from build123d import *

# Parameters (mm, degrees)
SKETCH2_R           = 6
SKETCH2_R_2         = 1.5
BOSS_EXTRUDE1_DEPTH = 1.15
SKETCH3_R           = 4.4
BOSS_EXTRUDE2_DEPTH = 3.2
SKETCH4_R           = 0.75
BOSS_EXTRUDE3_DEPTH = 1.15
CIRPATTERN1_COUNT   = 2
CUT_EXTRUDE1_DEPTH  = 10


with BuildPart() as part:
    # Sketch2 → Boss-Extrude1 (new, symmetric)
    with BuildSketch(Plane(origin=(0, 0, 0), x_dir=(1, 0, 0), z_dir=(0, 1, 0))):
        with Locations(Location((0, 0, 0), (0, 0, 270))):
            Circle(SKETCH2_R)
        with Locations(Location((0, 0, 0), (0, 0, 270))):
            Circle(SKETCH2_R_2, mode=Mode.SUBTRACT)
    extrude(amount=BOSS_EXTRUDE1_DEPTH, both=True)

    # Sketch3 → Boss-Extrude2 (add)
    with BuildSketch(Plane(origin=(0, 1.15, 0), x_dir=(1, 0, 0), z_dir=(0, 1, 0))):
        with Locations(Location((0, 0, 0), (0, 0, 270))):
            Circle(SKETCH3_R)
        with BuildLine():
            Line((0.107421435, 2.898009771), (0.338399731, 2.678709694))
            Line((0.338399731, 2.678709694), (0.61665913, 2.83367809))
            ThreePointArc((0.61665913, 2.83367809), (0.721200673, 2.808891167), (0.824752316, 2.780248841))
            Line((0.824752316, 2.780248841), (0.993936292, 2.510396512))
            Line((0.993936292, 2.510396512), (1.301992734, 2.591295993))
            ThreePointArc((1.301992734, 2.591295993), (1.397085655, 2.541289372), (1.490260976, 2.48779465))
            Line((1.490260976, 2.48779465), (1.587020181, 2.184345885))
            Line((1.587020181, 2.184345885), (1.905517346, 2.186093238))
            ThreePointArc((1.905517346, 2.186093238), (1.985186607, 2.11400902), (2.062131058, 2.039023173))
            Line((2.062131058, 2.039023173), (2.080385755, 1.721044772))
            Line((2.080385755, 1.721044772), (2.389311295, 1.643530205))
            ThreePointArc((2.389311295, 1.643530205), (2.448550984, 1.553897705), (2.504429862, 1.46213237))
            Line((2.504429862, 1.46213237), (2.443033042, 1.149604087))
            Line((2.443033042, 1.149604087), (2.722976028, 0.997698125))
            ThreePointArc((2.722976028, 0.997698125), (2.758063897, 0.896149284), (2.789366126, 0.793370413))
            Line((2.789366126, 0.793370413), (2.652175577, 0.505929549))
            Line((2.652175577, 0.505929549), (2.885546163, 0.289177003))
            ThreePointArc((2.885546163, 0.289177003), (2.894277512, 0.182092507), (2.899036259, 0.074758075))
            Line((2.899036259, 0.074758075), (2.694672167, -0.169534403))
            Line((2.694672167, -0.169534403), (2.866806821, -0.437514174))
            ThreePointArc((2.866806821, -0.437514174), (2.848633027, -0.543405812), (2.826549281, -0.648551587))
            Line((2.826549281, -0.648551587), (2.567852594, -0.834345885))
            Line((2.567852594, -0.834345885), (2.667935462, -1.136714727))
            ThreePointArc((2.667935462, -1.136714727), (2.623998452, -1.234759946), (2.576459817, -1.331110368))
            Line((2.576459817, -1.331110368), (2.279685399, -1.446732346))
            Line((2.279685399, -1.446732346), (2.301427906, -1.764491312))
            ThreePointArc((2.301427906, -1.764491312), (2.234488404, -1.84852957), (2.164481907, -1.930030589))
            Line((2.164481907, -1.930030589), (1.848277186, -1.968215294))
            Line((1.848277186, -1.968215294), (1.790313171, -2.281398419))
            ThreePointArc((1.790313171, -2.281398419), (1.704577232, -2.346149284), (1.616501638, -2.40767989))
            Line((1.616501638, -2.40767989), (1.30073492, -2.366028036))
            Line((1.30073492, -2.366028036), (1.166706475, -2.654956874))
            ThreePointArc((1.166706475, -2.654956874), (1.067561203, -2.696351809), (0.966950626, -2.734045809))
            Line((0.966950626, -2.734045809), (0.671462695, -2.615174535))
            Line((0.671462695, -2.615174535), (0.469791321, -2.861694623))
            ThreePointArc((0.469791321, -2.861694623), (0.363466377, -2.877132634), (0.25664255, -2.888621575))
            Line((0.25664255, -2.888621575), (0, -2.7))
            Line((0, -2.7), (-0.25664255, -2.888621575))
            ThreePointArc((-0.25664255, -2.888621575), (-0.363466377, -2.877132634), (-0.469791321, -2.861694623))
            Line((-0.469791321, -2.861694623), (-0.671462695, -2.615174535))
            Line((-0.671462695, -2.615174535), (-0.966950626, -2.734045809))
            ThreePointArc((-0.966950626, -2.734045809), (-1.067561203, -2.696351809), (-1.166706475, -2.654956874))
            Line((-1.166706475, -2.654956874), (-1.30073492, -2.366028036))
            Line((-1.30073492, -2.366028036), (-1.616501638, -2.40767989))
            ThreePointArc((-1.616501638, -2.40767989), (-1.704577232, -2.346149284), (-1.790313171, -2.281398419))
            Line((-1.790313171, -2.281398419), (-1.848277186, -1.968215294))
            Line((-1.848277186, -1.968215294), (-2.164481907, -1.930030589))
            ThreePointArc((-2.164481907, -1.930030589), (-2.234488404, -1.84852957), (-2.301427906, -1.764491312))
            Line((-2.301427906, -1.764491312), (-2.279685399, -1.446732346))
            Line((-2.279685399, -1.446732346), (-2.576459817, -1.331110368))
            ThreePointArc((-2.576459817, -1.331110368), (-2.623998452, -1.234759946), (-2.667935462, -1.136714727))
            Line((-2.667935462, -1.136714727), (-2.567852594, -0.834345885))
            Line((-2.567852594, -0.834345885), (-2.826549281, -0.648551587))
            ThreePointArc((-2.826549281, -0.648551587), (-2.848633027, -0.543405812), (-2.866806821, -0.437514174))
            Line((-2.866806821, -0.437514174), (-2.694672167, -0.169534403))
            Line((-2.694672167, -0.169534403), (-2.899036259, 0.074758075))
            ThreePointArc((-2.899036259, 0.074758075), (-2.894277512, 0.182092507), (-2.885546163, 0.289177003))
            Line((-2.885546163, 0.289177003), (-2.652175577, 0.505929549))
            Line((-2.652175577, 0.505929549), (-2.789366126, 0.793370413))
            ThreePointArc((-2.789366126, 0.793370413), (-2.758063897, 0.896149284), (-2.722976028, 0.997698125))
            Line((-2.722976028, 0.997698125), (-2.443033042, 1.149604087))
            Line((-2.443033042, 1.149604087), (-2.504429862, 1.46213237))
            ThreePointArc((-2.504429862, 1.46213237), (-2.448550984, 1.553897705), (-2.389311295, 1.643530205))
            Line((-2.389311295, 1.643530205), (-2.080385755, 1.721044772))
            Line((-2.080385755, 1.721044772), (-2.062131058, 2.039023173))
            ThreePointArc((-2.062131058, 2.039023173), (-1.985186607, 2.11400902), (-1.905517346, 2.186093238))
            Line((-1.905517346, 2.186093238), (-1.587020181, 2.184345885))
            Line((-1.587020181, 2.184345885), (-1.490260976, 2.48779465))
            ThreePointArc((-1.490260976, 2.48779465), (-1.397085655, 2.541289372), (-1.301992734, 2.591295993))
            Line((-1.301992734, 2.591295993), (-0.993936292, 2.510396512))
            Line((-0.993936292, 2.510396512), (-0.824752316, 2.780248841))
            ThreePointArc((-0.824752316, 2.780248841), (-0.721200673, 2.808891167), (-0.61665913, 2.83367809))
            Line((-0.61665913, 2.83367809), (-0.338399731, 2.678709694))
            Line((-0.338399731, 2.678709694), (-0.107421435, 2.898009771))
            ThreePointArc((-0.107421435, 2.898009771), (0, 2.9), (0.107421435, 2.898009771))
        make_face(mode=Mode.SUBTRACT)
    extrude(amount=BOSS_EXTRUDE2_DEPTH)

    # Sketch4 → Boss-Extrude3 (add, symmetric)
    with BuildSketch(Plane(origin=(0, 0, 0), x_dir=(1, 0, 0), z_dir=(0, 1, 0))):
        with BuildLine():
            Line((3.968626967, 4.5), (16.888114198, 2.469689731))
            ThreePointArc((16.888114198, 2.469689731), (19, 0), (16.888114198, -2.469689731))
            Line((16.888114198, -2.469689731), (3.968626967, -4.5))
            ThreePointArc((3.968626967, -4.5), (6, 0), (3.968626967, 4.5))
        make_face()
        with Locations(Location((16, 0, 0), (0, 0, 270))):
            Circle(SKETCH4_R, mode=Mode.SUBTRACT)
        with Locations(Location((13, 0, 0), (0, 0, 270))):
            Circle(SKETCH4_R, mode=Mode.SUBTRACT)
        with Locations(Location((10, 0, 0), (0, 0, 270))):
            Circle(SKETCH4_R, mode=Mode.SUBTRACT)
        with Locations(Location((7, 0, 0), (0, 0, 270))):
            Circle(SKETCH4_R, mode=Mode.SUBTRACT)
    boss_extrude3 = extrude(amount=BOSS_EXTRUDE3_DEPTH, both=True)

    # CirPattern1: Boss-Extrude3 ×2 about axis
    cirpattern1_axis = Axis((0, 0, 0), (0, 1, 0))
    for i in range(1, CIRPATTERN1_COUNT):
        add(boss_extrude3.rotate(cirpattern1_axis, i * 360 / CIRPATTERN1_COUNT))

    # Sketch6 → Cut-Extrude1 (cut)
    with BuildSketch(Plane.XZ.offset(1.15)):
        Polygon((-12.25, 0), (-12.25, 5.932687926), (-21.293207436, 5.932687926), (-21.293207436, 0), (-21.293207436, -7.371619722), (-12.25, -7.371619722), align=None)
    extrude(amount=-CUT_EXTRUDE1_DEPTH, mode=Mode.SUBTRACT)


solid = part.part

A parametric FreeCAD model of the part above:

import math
import FreeCAD as App
import Part
import Sketcher
from FreeCAD import Vector

doc = App.newDocument("Part")
params = doc.addObject("Spreadsheet::Sheet", "Params")
for row, (alias, value) in enumerate([
    ("sketch1_diameter", "12 mm"),
    ("sketch1_diameter2", "3 mm"),
    ("pad1_length", "2.3 mm"),
    ("sketch2_diameter", "8.8 mm"),
    ("sketch2_radius", "2.899999 mm"),
    ("pad2_length", "3.2 mm"),
    ("sketch3_radius", "6 mm"),
    ("sketch3_diameter", "1.5 mm"),
    ("sketch3_radius2", "2.5 mm"),
    ("pad3_length", "2.3 mm"),
    ("pocket1_length", "10 mm"),
], start=1):
    params.set(f"A{row}", alias)
    params.set(f"B{row}", "=" + value)
    params.setAlias(f"B{row}", alias)

body = doc.addObject("PartDesign::Body", "Body")

sketch1 = body.newObject("Sketcher::SketchObject", "Sketch")
sketch1.AttachmentSupport = (doc.getObject("XZ_Plane"), [""])
sketch1.MapMode = "FlatFace"
sketch1.addGeometry(Part.Circle(Vector(0, 0, 0), Vector(0, 0, 1), 6), False)
sketch1.addGeometry(Part.Circle(Vector(0, 0, 0), Vector(0, 0, 1), 1.5), False)
sketch1.addConstraint(Sketcher.Constraint("Coincident", 0, 3, -1, 1))
sketch1.addConstraint(Sketcher.Constraint("Coincident", 1, 3, -1, 1))
sketch1.addConstraint(Sketcher.Constraint("Diameter", 0, 12.0))
sketch1.addConstraint(Sketcher.Constraint("Diameter", 1, 3.0))
sketch1.setExpression("Constraints[2]", "Params.sketch1_diameter")
sketch1.setExpression("Constraints[3]", "Params.sketch1_diameter2")
pad1 = body.newObject("PartDesign::Pad", "Pad")
pad1.Profile = sketch1
pad1.setExpression("Length", "Params.pad1_length")
pad1.Midplane = True

sketch2 = body.newObject("Sketcher::SketchObject", "Sketch001")
sketch2.AttachmentSupport = (doc.getObject("XZ_Plane"), [""])
sketch2.MapMode = "FlatFace"
sketch2.AttachmentOffset = App.Placement(Vector(0, 0, -1.15), App.Rotation())
sketch2.addGeometry(Part.Circle(Vector(0, 0, 0), Vector(0, 0, 1), 4.4), False)
sketch2.addGeometry(Part.ArcOfCircle(Part.Circle(Vector(0, -0.000001, 0), Vector(0, 0, 1), 2.899999), math.radians(-92.122829), math.radians(-87.877171)), False)
sketch2.addGeometry(Part.LineSegment(Vector(0.107421, -2.89801, 0), Vector(0.3384, -2.67871, 0)), False)
sketch2.addGeometry(Part.LineSegment(Vector(0.3384, -2.67871, 0), Vector(0.616659, -2.833678, 0)), False)
sketch2.addGeometry(Part.ArcOfCircle(Part.Circle(Vector(0, 0, 0), Vector(0, 0, 1), 2.9), math.radians(-77.722828), math.radians(-73.477172)), False)
sketch2.addGeometry(Part.LineSegment(Vector(0.824752, -2.780249, 0), Vector(0.993936, -2.510397, 0)), False)
sketch2.addGeometry(Part.LineSegment(Vector(0.993936, -2.510397, 0), Vector(1.301993, -2.591296, 0)), False)
sketch2.addGeometry(Part.ArcOfCircle(Part.Circle(Vector(0, 0, 0), Vector(0, 0, 1), 2.9), math.radians(-63.322828), math.radians(-59.077171)), False)
sketch2.addGeometry(Part.LineSegment(Vector(1.490261, -2.487795, 0), Vector(1.58702, -2.184346, 0)), False)
sketch2.addGeometry(Part.LineSegment(Vector(1.58702, -2.184346, 0), Vector(1.905517, -2.186093, 0)), False)
sketch2.addGeometry(Part.ArcOfCircle(Part.Circle(Vector(0, 0, 0), Vector(0, 0, 1), 2.9), math.radians(-48.922829), math.radians(-44.677171)), False)
sketch2.addGeometry(Part.LineSegment(Vector(2.062131, -2.039023, 0), Vector(2.080386, -1.721045, 0)), False)
sketch2.addGeometry(Part.LineSegment(Vector(2.080386, -1.721045, 0), Vector(2.389311, -1.64353, 0)), False)
sketch2.addGeometry(Part.ArcOfCircle(Part.Circle(Vector(0, 0, 0), Vector(0, 0, 1), 2.9), math.radians(-34.522829), math.radians(-30.277172)), False)
sketch2.addGeometry(Part.LineSegment(Vector(2.50443, -1.462132, 0), Vector(2.443033, -1.149604, 0)), False)
sketch2.addGeometry(Part.LineSegment(Vector(2.443033, -1.149604, 0), Vector(2.722976, -0.997698, 0)), False)
sketch2.addGeometry(Part.ArcOfCircle(Part.Circle(Vector(0, 0, 0), Vector(0, 0, 1), 2.9), math.radians(-20.122829), math.radians(-15.877171)), False)
sketch2.addGeometry(Part.LineSegment(Vector(2.789366, -0.79337, 0), Vector(2.652176, -0.50593, 0)), False)
sketch2.addGeometry(Part.LineSegment(Vector(2.652176, -0.50593, 0), Vector(2.885546, -0.289177, 0)), False)
sketch2.addGeometry(Part.ArcOfCircle(Part.Circle(Vector(0, 0, 0), Vector(0, 0, 1), 2.9), math.radians(-5.722829), math.radians(-1.477172)), False)
sketch2.addGeometry(Part.LineSegment(Vector(2.899036, -0.074758, 0), Vector(2.694672, 0.169534, 0)), False)
sketch2.addGeometry(Part.LineSegment(Vector(2.694672, 0.169534, 0), Vector(2.866807, 0.437514, 0)), False)
sketch2.addGeometry(Part.ArcOfCircle(Part.Circle(Vector(0, 0, 0), Vector(0, 0, 1), 2.9), math.radians(8.677172), math.radians(12.922829)), False)
sketch2.addGeometry(Part.LineSegment(Vector(2.826549, 0.648552, 0), Vector(2.567853, 0.834346, 0)), False)
sketch2.addGeometry(Part.LineSegment(Vector(2.567853, 0.834346, 0), Vector(2.667935, 1.136715, 0)), False)
sketch2.addGeometry(Part.ArcOfCircle(Part.Circle(Vector(0, 0, 0), Vector(0, 0, 1), 2.9), math.radians(23.077171), math.radians(27.322829)), False)
sketch2.addGeometry(Part.LineSegment(Vector(2.57646, 1.33111, 0), Vector(2.279685, 1.446732, 0)), False)
sketch2.addGeometry(Part.LineSegment(Vector(2.279685, 1.446732, 0), Vector(2.301428, 1.764491, 0)), False)
sketch2.addGeometry(Part.ArcOfCircle(Part.Circle(Vector(0, 0, 0), Vector(0, 0, 1), 2.9), math.radians(37.477171), math.radians(41.722829)), False)
sketch2.addGeometry(Part.LineSegment(Vector(2.164482, 1.930031, 0), Vector(1.848277, 1.968215, 0)), False)
sketch2.addGeometry(Part.LineSegment(Vector(1.848277, 1.968215, 0), Vector(1.790313, 2.281398, 0)), False)
sketch2.addGeometry(Part.ArcOfCircle(Part.Circle(Vector(0.000001, 0.000001, 0), Vector(0, 0, 1), 2.899999), math.radians(51.87717), math.radians(56.12283)), False)
sketch2.addGeometry(Part.LineSegment(Vector(1.616502, 2.40768, 0), Vector(1.300735, 2.366028, 0)), False)
sketch2.addGeometry(Part.LineSegment(Vector(1.300735, 2.366028, 0), Vector(1.166706, 2.654957, 0)), False)
sketch2.addGeometry(Part.ArcOfCircle(Part.Circle(Vector(0, 0, 0), Vector(0, 0, 1), 2.9), math.radians(66.277171), math.radians(70.522829)), False)
sketch2.addGeometry(Part.LineSegment(Vector(0.966951, 2.734046, 0), Vector(0.671463, 2.615175, 0)), False)
sketch2.addGeometry(Part.LineSegment(Vector(0.671463, 2.615175, 0), Vector(0.469791, 2.861695, 0)), False)
sketch2.addGeometry(Part.ArcOfCircle(Part.Circle(Vector(0, 0, 0), Vector(0, 0, 1), 2.9), math.radians(80.677171), math.radians(84.922829)), False)
sketch2.addGeometry(Part.LineSegment(Vector(0.256643, 2.888622, 0), Vector(0, 2.7, 0)), False)
sketch2.addGeometry(Part.LineSegment(Vector(0, 2.7, 0), Vector(-0.256643, 2.888622, 0)), False)
sketch2.addGeometry(Part.ArcOfCircle(Part.Circle(Vector(0, 0, 0), Vector(0, 0, 1), 2.9), math.radians(95.077171), math.radians(99.322829)), False)
sketch2.addGeometry(Part.LineSegment(Vector(-0.469791, 2.861695, 0), Vector(-0.671463, 2.615175, 0)), False)
sketch2.addGeometry(Part.LineSegment(Vector(-0.671463, 2.615175, 0), Vector(-0.966951, 2.734046, 0)), False)
sketch2.addGeometry(Part.ArcOfCircle(Part.Circle(Vector(0, 0, 0), Vector(0, 0, 1), 2.9), math.radians(109.477171), math.radians(113.722829)), False)
sketch2.addGeometry(Part.LineSegment(Vector(-1.166706, 2.654957, 0), Vector(-1.300735, 2.366028, 0)), False)
sketch2.addGeometry(Part.LineSegment(Vector(-1.300735, 2.366028, 0), Vector(-1.616502, 2.40768, 0)), False)
sketch2.addGeometry(Part.ArcOfCircle(Part.Circle(Vector(-0.000001, 0.000001, 0), Vector(0, 0, 1), 2.899999), math.radians(123.87717), math.radians(128.12283)), False)
sketch2.addGeometry(Part.LineSegment(Vector(-1.790313, 2.281398, 0), Vector(-1.848277, 1.968215, 0)), False)
sketch2.addGeometry(Part.LineSegment(Vector(-1.848277, 1.968215, 0), Vector(-2.164482, 1.930031, 0)), False)
sketch2.addGeometry(Part.ArcOfCircle(Part.Circle(Vector(0, 0, 0), Vector(0, 0, 1), 2.9), math.radians(138.277171), math.radians(142.522829)), False)
sketch2.addGeometry(Part.LineSegment(Vector(-2.301428, 1.764491, 0), Vector(-2.279685, 1.446732, 0)), False)
sketch2.addGeometry(Part.LineSegment(Vector(-2.279685, 1.446732, 0), Vector(-2.57646, 1.33111, 0)), False)
sketch2.addGeometry(Part.ArcOfCircle(Part.Circle(Vector(0, 0, 0), Vector(0, 0, 1), 2.9), math.radians(152.677171), math.radians(156.922829)), False)
sketch2.addGeometry(Part.LineSegment(Vector(-2.667935, 1.136715, 0), Vector(-2.567853, 0.834346, 0)), False)
sketch2.addGeometry(Part.LineSegment(Vector(-2.567853, 0.834346, 0), Vector(-2.826549, 0.648552, 0)), False)
sketch2.addGeometry(Part.ArcOfCircle(Part.Circle(Vector(0, 0, 0), Vector(0, 0, 1), 2.9), math.radians(167.077171), math.radians(171.322828)), False)
sketch2.addGeometry(Part.LineSegment(Vector(-2.866807, 0.437514, 0), Vector(-2.694672, 0.169534, 0)), False)
sketch2.addGeometry(Part.LineSegment(Vector(-2.694672, 0.169534, 0), Vector(-2.899036, -0.074758, 0)), False)
sketch2.addGeometry(Part.ArcOfCircle(Part.Circle(Vector(0, 0, 0), Vector(0, 0, 1), 2.9), math.radians(-178.522828), math.radians(-174.277171)), False)
sketch2.addGeometry(Part.LineSegment(Vector(-2.885546, -0.289177, 0), Vector(-2.652176, -0.50593, 0)), False)
sketch2.addGeometry(Part.LineSegment(Vector(-2.652176, -0.50593, 0), Vector(-2.789366, -0.79337, 0)), False)
sketch2.addGeometry(Part.ArcOfCircle(Part.Circle(Vector(0, 0, 0), Vector(0, 0, 1), 2.9), math.radians(-164.122829), math.radians(-159.877171)), False)
sketch2.addGeometry(Part.LineSegment(Vector(-2.722976, -0.997698, 0), Vector(-2.443033, -1.149604, 0)), False)
sketch2.addGeometry(Part.LineSegment(Vector(-2.443033, -1.149604, 0), Vector(-2.50443, -1.462132, 0)), False)
sketch2.addGeometry(Part.ArcOfCircle(Part.Circle(Vector(0, 0, 0), Vector(0, 0, 1), 2.9), math.radians(-149.722828), math.radians(-145.477171)), False)
sketch2.addGeometry(Part.LineSegment(Vector(-2.389311, -1.64353, 0), Vector(-2.080386, -1.721045, 0)), False)
sketch2.addGeometry(Part.LineSegment(Vector(-2.080386, -1.721045, 0), Vector(-2.062131, -2.039023, 0)), False)
sketch2.addGeometry(Part.ArcOfCircle(Part.Circle(Vector(0, 0, 0), Vector(0, 0, 1), 2.9), math.radians(-135.322829), math.radians(-131.077171)), False)
sketch2.addGeometry(Part.LineSegment(Vector(-1.905517, -2.186093, 0), Vector(-1.58702, -2.184346, 0)), False)
sketch2.addGeometry(Part.LineSegment(Vector(-1.58702, -2.184346, 0), Vector(-1.490261, -2.487795, 0)), False)
sketch2.addGeometry(Part.ArcOfCircle(Part.Circle(Vector(0, 0, 0), Vector(0, 0, 1), 2.9), math.radians(-120.922829), math.radians(-116.677172)), False)
sketch2.addGeometry(Part.LineSegment(Vector(-1.301993, -2.591296, 0), Vector(-0.993936, -2.510397, 0)), False)
sketch2.addGeometry(Part.LineSegment(Vector(-0.993936, -2.510397, 0), Vector(-0.824752, -2.780249, 0)), False)
sketch2.addGeometry(Part.ArcOfCircle(Part.Circle(Vector(0, 0, 0), Vector(0, 0, 1), 2.9), math.radians(-106.522828), math.radians(-102.277172)), False)
sketch2.addGeometry(Part.LineSegment(Vector(-0.616659, -2.833678, 0), Vector(-0.3384, -2.67871, 0)), False)
sketch2.addGeometry(Part.LineSegment(Vector(-0.3384, -2.67871, 0), Vector(-0.107421, -2.89801, 0)), False)
sketch2.addConstraint(Sketcher.Constraint("Coincident", 1, 2, 2, 1))
sketch2.addConstraint(Sketcher.Constraint("Coincident", 2, 2, 3, 1))
sketch2.addConstraint(Sketcher.Constraint("Coincident", 3, 2, 4, 1))
sketch2.addConstraint(Sketcher.Constraint("Coincident", 4, 2, 5, 1))
sketch2.addConstraint(Sketcher.Constraint("Coincident", 5, 2, 6, 1))
sketch2.addConstraint(Sketcher.Constraint("Coincident", 6, 2, 7, 1))
sketch2.addConstraint(Sketcher.Constraint("Coincident", 7, 2, 8, 1))
sketch2.addConstraint(Sketcher.Constraint("Coincident", 8, 2, 9, 1))
sketch2.addConstraint(Sketcher.Constraint("Coincident", 9, 2, 10, 1))
sketch2.addConstraint(Sketcher.Constraint("Coincident", 10, 2, 11, 1))
sketch2.addConstraint(Sketcher.Constraint("Coincident", 11, 2, 12, 1))
sketch2.addConstraint(Sketcher.Constraint("Coincident", 12, 2, 13, 1))
sketch2.addConstraint(Sketcher.Constraint("Coincident", 13, 2, 14, 1))
sketch2.addConstraint(Sketcher.Constraint("Coincident", 14, 2, 15, 1))
sketch2.addConstraint(Sketcher.Constraint("Coincident", 15, 2, 16, 1))
sketch2.addConstraint(Sketcher.Constraint("Coincident", 16, 2, 17, 1))
sketch2.addConstraint(Sketcher.Constraint("Coincident", 17, 2, 18, 1))
sketch2.addConstraint(Sketcher.Constraint("Coincident", 18, 2, 19, 1))
sketch2.addConstraint(Sketcher.Constraint("Coincident", 19, 2, 20, 1))
sketch2.addConstraint(Sketcher.Constraint("Coincident", 20, 2, 21, 1))
sketch2.addConstraint(Sketcher.Constraint("Coincident", 21, 2, 22, 1))
sketch2.addConstraint(Sketcher.Constraint("Coincident", 22, 2, 23, 1))
sketch2.addConstraint(Sketcher.Constraint("Coincident", 23, 2, 24, 1))
sketch2.addConstraint(Sketcher.Constraint("Coincident", 24, 2, 25, 1))
sketch2.addConstraint(Sketcher.Constraint("Coincident", 25, 2, 26, 1))
sketch2.addConstraint(Sketcher.Constraint("Coincident", 26, 2, 27, 1))
sketch2.addConstraint(Sketcher.Constraint("Coincident", 27, 2, 28, 1))
sketch2.addConstraint(Sketcher.Constraint("Coincident", 28, 2, 29, 1))
sketch2.addConstraint(Sketcher.Constraint("Coincident", 29, 2, 30, 1))
sketch2.addConstraint(Sketcher.Constraint("Coincident", 30, 2, 31, 1))
sketch2.addConstraint(Sketcher.Constraint("Coincident", 31, 2, 32, 1))
sketch2.addConstraint(Sketcher.Constraint("Coincident", 32, 2, 33, 1))
sketch2.addConstraint(Sketcher.Constraint("Coincident", 33, 2, 34, 1))
sketch2.addConstraint(Sketcher.Constraint("Coincident", 34, 2, 35, 1))
sketch2.addConstraint(Sketcher.Constraint("Coincident", 35, 2, 36, 1))
sketch2.addConstraint(Sketcher.Constraint("Coincident", 36, 2, 37, 1))
sketch2.addConstraint(Sketcher.Constraint("Coincident", 37, 2, 38, 1))
sketch2.addConstraint(Sketcher.Constraint("Coincident", 38, 2, 39, 1))
sketch2.addConstraint(Sketcher.Constraint("Coincident", 39, 2, 40, 1))
sketch2.addConstraint(Sketcher.Constraint("Coincident", 40, 2, 41, 1))
sketch2.addConstraint(Sketcher.Constraint("Coincident", 41, 2, 42, 1))
sketch2.addConstraint(Sketcher.Constraint("Coincident", 42, 2, 43, 1))
sketch2.addConstraint(Sketcher.Constraint("Coincident", 43, 2, 44, 1))
sketch2.addConstraint(Sketcher.Constraint("Coincident", 44, 2, 45, 1))
sketch2.addConstraint(Sketcher.Constraint("Coincident", 45, 2, 46, 1))
sketch2.addConstraint(Sketcher.Constraint("Coincident", 46, 2, 47, 1))
sketch2.addConstraint(Sketcher.Constraint("Coincident", 47, 2, 48, 1))
sketch2.addConstraint(Sketcher.Constraint("Coincident", 48, 2, 49, 1))
sketch2.addConstraint(Sketcher.Constraint("Coincident", 49, 2, 50, 1))
sketch2.addConstraint(Sketcher.Constraint("Coincident", 50, 2, 51, 1))
sketch2.addConstraint(Sketcher.Constraint("Coincident", 51, 2, 52, 1))
sketch2.addConstraint(Sketcher.Constraint("Coincident", 52, 2, 53, 1))
sketch2.addConstraint(Sketcher.Constraint("Coincident", 53, 2, 54, 1))
sketch2.addConstraint(Sketcher.Constraint("Coincident", 54, 2, 55, 1))
sketch2.addConstraint(Sketcher.Constraint("Coincident", 55, 2, 56, 1))
sketch2.addConstraint(Sketcher.Constraint("Coincident", 56, 2, 57, 1))
sketch2.addConstraint(Sketcher.Constraint("Coincident", 57, 2, 58, 1))
sketch2.addConstraint(Sketcher.Constraint("Coincident", 58, 2, 59, 1))
sketch2.addConstraint(Sketcher.Constraint("Coincident", 59, 2, 60, 1))
sketch2.addConstraint(Sketcher.Constraint("Coincident", 60, 2, 61, 1))
sketch2.addConstraint(Sketcher.Constraint("Coincident", 61, 2, 62, 1))
sketch2.addConstraint(Sketcher.Constraint("Coincident", 62, 2, 63, 1))
sketch2.addConstraint(Sketcher.Constraint("Coincident", 63, 2, 64, 1))
sketch2.addConstraint(Sketcher.Constraint("Coincident", 64, 2, 65, 1))
sketch2.addConstraint(Sketcher.Constraint("Coincident", 65, 2, 66, 1))
sketch2.addConstraint(Sketcher.Constraint("Coincident", 66, 2, 67, 1))
sketch2.addConstraint(Sketcher.Constraint("Coincident", 67, 2, 68, 1))
sketch2.addConstraint(Sketcher.Constraint("Coincident", 68, 2, 69, 1))
sketch2.addConstraint(Sketcher.Constraint("Coincident", 69, 2, 70, 1))
sketch2.addConstraint(Sketcher.Constraint("Coincident", 70, 2, 71, 1))
sketch2.addConstraint(Sketcher.Constraint("Coincident", 71, 2, 72, 1))
sketch2.addConstraint(Sketcher.Constraint("Coincident", 72, 2, 73, 1))
sketch2.addConstraint(Sketcher.Constraint("Coincident", 73, 2, 74, 1))
sketch2.addConstraint(Sketcher.Constraint("Coincident", 74, 2, 75, 1))
sketch2.addConstraint(Sketcher.Constraint("Coincident", 75, 2, 1, 1))
sketch2.addConstraint(Sketcher.Constraint("Coincident", 0, 3, -1, 1))
sketch2.addConstraint(Sketcher.Constraint("Coincident", 1, 3, -1, 1))
sketch2.addConstraint(Sketcher.Constraint("Coincident", 4, 3, -1, 1))
sketch2.addConstraint(Sketcher.Constraint("Coincident", 7, 3, -1, 1))
sketch2.addConstraint(Sketcher.Constraint("Coincident", 10, 3, -1, 1))
sketch2.addConstraint(Sketcher.Constraint("Coincident", 13, 3, -1, 1))
sketch2.addConstraint(Sketcher.Constraint("Coincident", 16, 3, -1, 1))
sketch2.addConstraint(Sketcher.Constraint("Coincident", 19, 3, -1, 1))
sketch2.addConstraint(Sketcher.Constraint("Coincident", 22, 3, -1, 1))
sketch2.addConstraint(Sketcher.Constraint("Coincident", 25, 3, -1, 1))
sketch2.addConstraint(Sketcher.Constraint("Coincident", 28, 3, -1, 1))
sketch2.addConstraint(Sketcher.Constraint("Coincident", 31, 3, -1, 1))
sketch2.addConstraint(Sketcher.Constraint("Coincident", 34, 3, -1, 1))
sketch2.addConstraint(Sketcher.Constraint("Coincident", 37, 3, -1, 1))
sketch2.addConstraint(Sketcher.Constraint("Coincident", 40, 3, -1, 1))
sketch2.addConstraint(Sketcher.Constraint("Coincident", 43, 3, -1, 1))
sketch2.addConstraint(Sketcher.Constraint("Coincident", 46, 3, -1, 1))
sketch2.addConstraint(Sketcher.Constraint("Coincident", 49, 3, -1, 1))
sketch2.addConstraint(Sketcher.Constraint("Coincident", 52, 3, -1, 1))
sketch2.addConstraint(Sketcher.Constraint("Coincident", 55, 3, -1, 1))
sketch2.addConstraint(Sketcher.Constraint("Coincident", 58, 3, -1, 1))
sketch2.addConstraint(Sketcher.Constraint("Coincident", 61, 3, -1, 1))
sketch2.addConstraint(Sketcher.Constraint("Coincident", 64, 3, -1, 1))
sketch2.addConstraint(Sketcher.Constraint("Coincident", 67, 3, -1, 1))
sketch2.addConstraint(Sketcher.Constraint("Coincident", 70, 3, -1, 1))
sketch2.addConstraint(Sketcher.Constraint("Coincident", 73, 3, -1, 1))
sketch2.addConstraint(Sketcher.Constraint("Equal", 1, 4))
sketch2.addConstraint(Sketcher.Constraint("Equal", 4, 7))
sketch2.addConstraint(Sketcher.Constraint("Equal", 7, 10))
sketch2.addConstraint(Sketcher.Constraint("Equal", 10, 13))
sketch2.addConstraint(Sketcher.Constraint("Equal", 13, 16))
sketch2.addConstraint(Sketcher.Constraint("Equal", 16, 19))
sketch2.addConstraint(Sketcher.Constraint("Equal", 19, 22))
sketch2.addConstraint(Sketcher.Constraint("Equal", 22, 25))
sketch2.addConstraint(Sketcher.Constraint("Equal", 25, 28))
sketch2.addConstraint(Sketcher.Constraint("Equal", 28, 31))
sketch2.addConstraint(Sketcher.Constraint("Equal", 31, 34))
sketch2.addConstraint(Sketcher.Constraint("Equal", 34, 37))
sketch2.addConstraint(Sketcher.Constraint("Equal", 37, 40))
sketch2.addConstraint(Sketcher.Constraint("Equal", 40, 43))
sketch2.addConstraint(Sketcher.Constraint("Equal", 43, 46))
sketch2.addConstraint(Sketcher.Constraint("Equal", 46, 49))
sketch2.addConstraint(Sketcher.Constraint("Equal", 49, 52))
sketch2.addConstraint(Sketcher.Constraint("Equal", 52, 55))
sketch2.addConstraint(Sketcher.Constraint("Equal", 55, 58))
sketch2.addConstraint(Sketcher.Constraint("Equal", 58, 61))
sketch2.addConstraint(Sketcher.Constraint("Equal", 61, 64))
sketch2.addConstraint(Sketcher.Constraint("Equal", 64, 67))
sketch2.addConstraint(Sketcher.Constraint("Equal", 67, 70))
sketch2.addConstraint(Sketcher.Constraint("Equal", 70, 73))
sketch2.addConstraint(Sketcher.Constraint("Symmetric", 35, 2, 41, 2, -2))
sketch2.addConstraint(Sketcher.Constraint("Symmetric", 32, 2, 44, 2, -2))
sketch2.addConstraint(Sketcher.Constraint("Symmetric", 29, 2, 47, 2, -2))
sketch2.addConstraint(Sketcher.Constraint("Symmetric", 26, 2, 50, 2, -2))
sketch2.addConstraint(Sketcher.Constraint("Symmetric", 23, 2, 53, 2, -2))
sketch2.addConstraint(Sketcher.Constraint("Symmetric", 20, 2, 56, 2, -2))
sketch2.addConstraint(Sketcher.Constraint("Symmetric", 17, 2, 59, 2, -2))
sketch2.addConstraint(Sketcher.Constraint("Symmetric", 14, 2, 62, 2, -2))
sketch2.addConstraint(Sketcher.Constraint("Symmetric", 11, 2, 65, 2, -2))
sketch2.addConstraint(Sketcher.Constraint("Symmetric", 8, 2, 68, 2, -2))
sketch2.addConstraint(Sketcher.Constraint("Symmetric", 5, 2, 71, 2, -2))
sketch2.addConstraint(Sketcher.Constraint("Symmetric", 2, 2, 74, 2, -2))
sketch2.addConstraint(Sketcher.Constraint("PointOnObject", 38, 2, -2))
sketch2.addConstraint(Sketcher.Constraint("Horizontal", 37, 2, 39, 2))
sketch2.addConstraint(Sketcher.Constraint("Horizontal", 36, 2, 40, 2))
sketch2.addConstraint(Sketcher.Constraint("Horizontal", 34, 2, 42, 2))
sketch2.addConstraint(Sketcher.Constraint("Horizontal", 33, 2, 43, 2))
sketch2.addConstraint(Sketcher.Constraint("Horizontal", 31, 2, 45, 2))
sketch2.addConstraint(Sketcher.Constraint("Horizontal", 30, 2, 46, 2))
sketch2.addConstraint(Sketcher.Constraint("Horizontal", 28, 2, 48, 2))
sketch2.addConstraint(Sketcher.Constraint("Horizontal", 27, 2, 49, 2))
sketch2.addConstraint(Sketcher.Constraint("Horizontal", 25, 2, 51, 2))
sketch2.addConstraint(Sketcher.Constraint("Horizontal", 24, 2, 52, 2))
sketch2.addConstraint(Sketcher.Constraint("Horizontal", 22, 2, 54, 2))
sketch2.addConstraint(Sketcher.Constraint("Horizontal", 21, 2, 55, 2))
sketch2.addConstraint(Sketcher.Constraint("Horizontal", 19, 2, 57, 2))
sketch2.addConstraint(Sketcher.Constraint("Horizontal", 18, 2, 58, 2))
sketch2.addConstraint(Sketcher.Constraint("Horizontal", 16, 2, 60, 2))
sketch2.addConstraint(Sketcher.Constraint("Horizontal", 15, 2, 61, 2))
sketch2.addConstraint(Sketcher.Constraint("Horizontal", 13, 2, 63, 2))
sketch2.addConstraint(Sketcher.Constraint("Horizontal", 12, 2, 64, 2))
sketch2.addConstraint(Sketcher.Constraint("Horizontal", 10, 2, 66, 2))
sketch2.addConstraint(Sketcher.Constraint("Horizontal", 9, 2, 67, 2))
sketch2.addConstraint(Sketcher.Constraint("Horizontal", 7, 2, 69, 2))
sketch2.addConstraint(Sketcher.Constraint("Horizontal", 6, 2, 70, 2))
sketch2.addConstraint(Sketcher.Constraint("Horizontal", 4, 2, 72, 2))
sketch2.addConstraint(Sketcher.Constraint("Horizontal", 3, 2, 73, 2))
sketch2.addConstraint(Sketcher.Constraint("Horizontal", 1, 2, 75, 2))
sketch2.addConstraint(Sketcher.Constraint("Equal", 2, 3))
sketch2.addConstraint(Sketcher.Constraint("Equal", 3, 5))
sketch2.addConstraint(Sketcher.Constraint("Equal", 5, 6))
sketch2.addConstraint(Sketcher.Constraint("Equal", 6, 8))
sketch2.addConstraint(Sketcher.Constraint("Equal", 8, 9))
sketch2.addConstraint(Sketcher.Constraint("Equal", 9, 11))
sketch2.addConstraint(Sketcher.Constraint("Equal", 11, 12))
sketch2.addConstraint(Sketcher.Constraint("Equal", 12, 14))
sketch2.addConstraint(Sketcher.Constraint("Equal", 14, 15))
sketch2.addConstraint(Sketcher.Constraint("Equal", 15, 17))
sketch2.addConstraint(Sketcher.Constraint("Equal", 17, 18))
sketch2.addConstraint(Sketcher.Constraint("Equal", 18, 20))
sketch2.addConstraint(Sketcher.Constraint("Equal", 20, 21))
sketch2.addConstraint(Sketcher.Constraint("Equal", 21, 23))
sketch2.addConstraint(Sketcher.Constraint("Equal", 23, 24))
sketch2.addConstraint(Sketcher.Constraint("Equal", 24, 26))
sketch2.addConstraint(Sketcher.Constraint("Equal", 26, 27))
sketch2.addConstraint(Sketcher.Constraint("Equal", 27, 29))
sketch2.addConstraint(Sketcher.Constraint("Equal", 29, 30))
sketch2.addConstraint(Sketcher.Constraint("Equal", 30, 32))
sketch2.addConstraint(Sketcher.Constraint("Equal", 32, 33))
sketch2.addConstraint(Sketcher.Constraint("Equal", 33, 35))
sketch2.addConstraint(Sketcher.Constraint("Equal", 35, 36))
sketch2.addConstraint(Sketcher.Constraint("Equal", 36, 38))
sketch2.addConstraint(Sketcher.Constraint("Diameter", 0, 8.8))
sketch2.addConstraint(Sketcher.Constraint("Radius", 1, 2.899999))
sketch2.addConstraint(Sketcher.Constraint("DistanceY", -1, 1, 38, 2, 2.7))
sketch2.addConstraint(Sketcher.Constraint("Distance", 2, 0.318502))
sketch2.addConstraint(Sketcher.Constraint("DistanceX", -1, 1, 2, 2, 0.3384))
sketch2.addConstraint(Sketcher.Constraint("DistanceY", 15, 2, -1, 1, 0.997698))
sketch2.addConstraint(Sketcher.Constraint("DistanceY", -1, 1, 30, 2, 2.281398))
sketch2.addConstraint(Sketcher.Constraint("DistanceX", -1, 1, 31, 2, 1.616502))
sketch2.addConstraint(Sketcher.Constraint("DistanceX", -1, 1, 1, 2, 0.107421))
sketch2.addConstraint(Sketcher.Constraint("DistanceY", 4, 2, -1, 1, 2.780249))
sketch2.addConstraint(Sketcher.Constraint("DistanceX", -1, 1, 7, 2, 1.490261))
sketch2.addConstraint(Sketcher.Constraint("DistanceX", -1, 1, 8, 2, 1.58702))
sketch2.addConstraint(Sketcher.Constraint("DistanceX", -1, 1, 10, 2, 2.062131))
sketch2.addConstraint(Sketcher.Constraint("DistanceX", -1, 1, 12, 2, 2.389311))
sketch2.addConstraint(Sketcher.Constraint("DistanceX", -1, 1, 13, 2, 2.50443))
sketch2.addConstraint(Sketcher.Constraint("DistanceY", 16, 2, -1, 1, 0.79337))
sketch2.addConstraint(Sketcher.Constraint("DistanceY", 17, 2, -1, 1, 0.50593))
sketch2.addConstraint(Sketcher.Constraint("DistanceY", 19, 2, -1, 1, 0.074758))
sketch2.addConstraint(Sketcher.Constraint("DistanceX", -1, 1, 22, 2, 2.826549))
sketch2.addConstraint(Sketcher.Constraint("DistanceX", -1, 1, 25, 2, 2.57646))
sketch2.addConstraint(Sketcher.Constraint("DistanceY", -1, 1, 27, 2, 1.764491))
sketch2.addConstraint(Sketcher.Constraint("DistanceX", -1, 1, 28, 2, 2.164482))
sketch2.addConstraint(Sketcher.Constraint("DistanceY", -1, 1, 32, 2, 2.366028))
sketch2.addConstraint(Sketcher.Constraint("DistanceX", -1, 1, 34, 2, 0.966951))
sketch2.addConstraint(Sketcher.Constraint("DistanceX", -1, 1, 36, 2, 0.469791))
sketch2.addConstraint(Sketcher.Constraint("DistanceX", -1, 1, 5, 2, 0.993936))
sketch2.addConstraint(Sketcher.Constraint("DistanceX", -1, 1, 20, 2, 2.694672))
sketch2.addConstraint(Sketcher.Constraint("DistanceX", -1, 1, 23, 2, 2.567853))
sketch2.setExpression("Constraints[187]", "Params.sketch2_diameter")
sketch2.setExpression("Constraints[188]", "Params.sketch2_radius")
pad2 = body.newObject("PartDesign::Pad", "Pad001")
pad2.Profile = sketch2
pad2.setExpression("Length", "Params.pad2_length")
pad2.Reversed = True

sketch3 = body.newObject("Sketcher::SketchObject", "Sketch002")
sketch3.AttachmentSupport = (doc.getObject("XZ_Plane"), [""])
sketch3.MapMode = "FlatFace"
sketch3.addGeometry(Part.LineSegment(Vector(16.888114, -2.46969, 0), Vector(3.968627, -4.5, 0)), False)
sketch3.addGeometry(Part.ArcOfCircle(Part.Circle(Vector(0, 0, 0), Vector(0, 0, 1), 6), math.radians(-48.590378), math.radians(48.590378)), False)
sketch3.addGeometry(Part.LineSegment(Vector(3.968627, 4.5, 0), Vector(16.888114, 2.46969, 0)), False)
sketch3.addGeometry(Part.ArcOfCircle(Part.Circle(Vector(16.5, 0, 0), Vector(0, 0, 1), 2.5), math.radians(-81.068955), math.radians(81.068955)), False)
sketch3.addGeometry(Part.Circle(Vector(16, 0, 0), Vector(0, 0, 1), 0.75), False)
sketch3.addGeometry(Part.Circle(Vector(13, 0, 0), Vector(0, 0, 1), 0.75), False)
sketch3.addGeometry(Part.Circle(Vector(10, 0, 0), Vector(0, 0, 1), 0.75), False)
sketch3.addGeometry(Part.Circle(Vector(7, 0, 0), Vector(0, 0, 1), 0.75), False)
sketch3.addConstraint(Sketcher.Constraint("Coincident", 0, 2, 1, 1))
sketch3.addConstraint(Sketcher.Constraint("Coincident", 1, 2, 2, 1))
sketch3.addConstraint(Sketcher.Constraint("Tangent", 2, 2, 3, 2))
sketch3.addConstraint(Sketcher.Constraint("Tangent", 3, 1, 0, 1))
sketch3.addConstraint(Sketcher.Constraint("Coincident", 1, 3, -1, 1))
sketch3.addConstraint(Sketcher.Constraint("Equal", 4, 5))
sketch3.addConstraint(Sketcher.Constraint("Equal", 5, 6))
sketch3.addConstraint(Sketcher.Constraint("Equal", 6, 7))
sketch3.addConstraint(Sketcher.Constraint("Symmetric", 2, 2, 3, 1, -1))
sketch3.addConstraint(Sketcher.Constraint("PointOnObject", 4, 3, -1))
sketch3.addConstraint(Sketcher.Constraint("PointOnObject", 5, 3, -1))
sketch3.addConstraint(Sketcher.Constraint("PointOnObject", 6, 3, -1))
sketch3.addConstraint(Sketcher.Constraint("PointOnObject", 7, 3, -1))
sketch3.addConstraint(Sketcher.Constraint("Radius", 1, 6.0))
sketch3.addConstraint(Sketcher.Constraint("Diameter", 4, 1.5))
sketch3.addConstraint(Sketcher.Constraint("Radius", 3, 2.5))
sketch3.addConstraint(Sketcher.Constraint("DistanceX", -1, 1, 4, 3, 16.0))
sketch3.addConstraint(Sketcher.Constraint("DistanceX", -1, 1, 5, 3, 13.0))
sketch3.addConstraint(Sketcher.Constraint("DistanceX", -1, 1, 6, 3, 10.0))
sketch3.addConstraint(Sketcher.Constraint("DistanceX", -1, 1, 7, 3, 7.0))
sketch3.addConstraint(Sketcher.Constraint("DistanceY", 0, 2, 1, 2, 9.0))
sketch3.addConstraint(Sketcher.Constraint("DistanceX", -1, 1, 3, 3, 16.5))
sketch3.setExpression("Constraints[13]", "Params.sketch3_radius")
sketch3.setExpression("Constraints[14]", "Params.sketch3_diameter")
sketch3.setExpression("Constraints[15]", "Params.sketch3_radius2")
pad3 = body.newObject("PartDesign::Pad", "Pad002")
pad3.Profile = sketch3
pad3.setExpression("Length", "Params.pad3_length")
pad3.Midplane = True
doc.recompute()

polarpattern = body.newObject("PartDesign::PolarPattern", "PolarPattern")
polarpattern.Originals = [pad3]
polarpattern.Axis = (doc.getObject("Y_Axis"), [""])
polarpattern.Angle = 360
polarpattern.Occurrences = 2
body.Tip = polarpattern

sketch4 = body.newObject("Sketcher::SketchObject", "Sketch003")
sketch4.AttachmentSupport = (doc.getObject("XZ_Plane"), [""])
sketch4.MapMode = "FlatFace"
sketch4.AttachmentOffset = App.Placement(Vector(0, 0, 1.15), App.Rotation())
sketch4.addGeometry(Part.LineSegment(Vector(-12.25, 5.932688, 0), Vector(-21.293207, 5.932688, 0)), False)
sketch4.addGeometry(Part.LineSegment(Vector(-21.293207, 5.932688, 0), Vector(-21.293207, -7.37162, 0)), False)
sketch4.addGeometry(Part.LineSegment(Vector(-21.293207, -7.37162, 0), Vector(-12.25, -7.37162, 0)), False)
sketch4.addGeometry(Part.LineSegment(Vector(-12.25, -7.37162, 0), Vector(-12.25, 5.932688, 0)), False)
sketch4.addConstraint(Sketcher.Constraint("Coincident", 0, 2, 1, 1))
sketch4.addConstraint(Sketcher.Constraint("Coincident", 1, 2, 2, 1))
sketch4.addConstraint(Sketcher.Constraint("Coincident", 2, 2, 3, 1))
sketch4.addConstraint(Sketcher.Constraint("Coincident", 3, 2, 0, 1))
sketch4.addConstraint(Sketcher.Constraint("Horizontal", 0))
sketch4.addConstraint(Sketcher.Constraint("Vertical", 1))
sketch4.addConstraint(Sketcher.Constraint("Horizontal", 2))
sketch4.addConstraint(Sketcher.Constraint("Vertical", 3))
sketch4.addConstraint(Sketcher.Constraint("DistanceX", 2, 2, -1, 1, 12.25))
sketch4.addConstraint(Sketcher.Constraint("DistanceX", 0, 2, 0, 1, 9.043207))
sketch4.addConstraint(Sketcher.Constraint("DistanceY", 1, 2, 1, 1, 13.304308))
sketch4.addConstraint(Sketcher.Constraint("DistanceY", 1, 2, -1, 1, 7.37162))
pocket1 = body.newObject("PartDesign::Pocket", "Pocket")
pocket1.Profile = sketch4
pocket1.setExpression("Length", "Params.pocket1_length")

doc.recompute()
